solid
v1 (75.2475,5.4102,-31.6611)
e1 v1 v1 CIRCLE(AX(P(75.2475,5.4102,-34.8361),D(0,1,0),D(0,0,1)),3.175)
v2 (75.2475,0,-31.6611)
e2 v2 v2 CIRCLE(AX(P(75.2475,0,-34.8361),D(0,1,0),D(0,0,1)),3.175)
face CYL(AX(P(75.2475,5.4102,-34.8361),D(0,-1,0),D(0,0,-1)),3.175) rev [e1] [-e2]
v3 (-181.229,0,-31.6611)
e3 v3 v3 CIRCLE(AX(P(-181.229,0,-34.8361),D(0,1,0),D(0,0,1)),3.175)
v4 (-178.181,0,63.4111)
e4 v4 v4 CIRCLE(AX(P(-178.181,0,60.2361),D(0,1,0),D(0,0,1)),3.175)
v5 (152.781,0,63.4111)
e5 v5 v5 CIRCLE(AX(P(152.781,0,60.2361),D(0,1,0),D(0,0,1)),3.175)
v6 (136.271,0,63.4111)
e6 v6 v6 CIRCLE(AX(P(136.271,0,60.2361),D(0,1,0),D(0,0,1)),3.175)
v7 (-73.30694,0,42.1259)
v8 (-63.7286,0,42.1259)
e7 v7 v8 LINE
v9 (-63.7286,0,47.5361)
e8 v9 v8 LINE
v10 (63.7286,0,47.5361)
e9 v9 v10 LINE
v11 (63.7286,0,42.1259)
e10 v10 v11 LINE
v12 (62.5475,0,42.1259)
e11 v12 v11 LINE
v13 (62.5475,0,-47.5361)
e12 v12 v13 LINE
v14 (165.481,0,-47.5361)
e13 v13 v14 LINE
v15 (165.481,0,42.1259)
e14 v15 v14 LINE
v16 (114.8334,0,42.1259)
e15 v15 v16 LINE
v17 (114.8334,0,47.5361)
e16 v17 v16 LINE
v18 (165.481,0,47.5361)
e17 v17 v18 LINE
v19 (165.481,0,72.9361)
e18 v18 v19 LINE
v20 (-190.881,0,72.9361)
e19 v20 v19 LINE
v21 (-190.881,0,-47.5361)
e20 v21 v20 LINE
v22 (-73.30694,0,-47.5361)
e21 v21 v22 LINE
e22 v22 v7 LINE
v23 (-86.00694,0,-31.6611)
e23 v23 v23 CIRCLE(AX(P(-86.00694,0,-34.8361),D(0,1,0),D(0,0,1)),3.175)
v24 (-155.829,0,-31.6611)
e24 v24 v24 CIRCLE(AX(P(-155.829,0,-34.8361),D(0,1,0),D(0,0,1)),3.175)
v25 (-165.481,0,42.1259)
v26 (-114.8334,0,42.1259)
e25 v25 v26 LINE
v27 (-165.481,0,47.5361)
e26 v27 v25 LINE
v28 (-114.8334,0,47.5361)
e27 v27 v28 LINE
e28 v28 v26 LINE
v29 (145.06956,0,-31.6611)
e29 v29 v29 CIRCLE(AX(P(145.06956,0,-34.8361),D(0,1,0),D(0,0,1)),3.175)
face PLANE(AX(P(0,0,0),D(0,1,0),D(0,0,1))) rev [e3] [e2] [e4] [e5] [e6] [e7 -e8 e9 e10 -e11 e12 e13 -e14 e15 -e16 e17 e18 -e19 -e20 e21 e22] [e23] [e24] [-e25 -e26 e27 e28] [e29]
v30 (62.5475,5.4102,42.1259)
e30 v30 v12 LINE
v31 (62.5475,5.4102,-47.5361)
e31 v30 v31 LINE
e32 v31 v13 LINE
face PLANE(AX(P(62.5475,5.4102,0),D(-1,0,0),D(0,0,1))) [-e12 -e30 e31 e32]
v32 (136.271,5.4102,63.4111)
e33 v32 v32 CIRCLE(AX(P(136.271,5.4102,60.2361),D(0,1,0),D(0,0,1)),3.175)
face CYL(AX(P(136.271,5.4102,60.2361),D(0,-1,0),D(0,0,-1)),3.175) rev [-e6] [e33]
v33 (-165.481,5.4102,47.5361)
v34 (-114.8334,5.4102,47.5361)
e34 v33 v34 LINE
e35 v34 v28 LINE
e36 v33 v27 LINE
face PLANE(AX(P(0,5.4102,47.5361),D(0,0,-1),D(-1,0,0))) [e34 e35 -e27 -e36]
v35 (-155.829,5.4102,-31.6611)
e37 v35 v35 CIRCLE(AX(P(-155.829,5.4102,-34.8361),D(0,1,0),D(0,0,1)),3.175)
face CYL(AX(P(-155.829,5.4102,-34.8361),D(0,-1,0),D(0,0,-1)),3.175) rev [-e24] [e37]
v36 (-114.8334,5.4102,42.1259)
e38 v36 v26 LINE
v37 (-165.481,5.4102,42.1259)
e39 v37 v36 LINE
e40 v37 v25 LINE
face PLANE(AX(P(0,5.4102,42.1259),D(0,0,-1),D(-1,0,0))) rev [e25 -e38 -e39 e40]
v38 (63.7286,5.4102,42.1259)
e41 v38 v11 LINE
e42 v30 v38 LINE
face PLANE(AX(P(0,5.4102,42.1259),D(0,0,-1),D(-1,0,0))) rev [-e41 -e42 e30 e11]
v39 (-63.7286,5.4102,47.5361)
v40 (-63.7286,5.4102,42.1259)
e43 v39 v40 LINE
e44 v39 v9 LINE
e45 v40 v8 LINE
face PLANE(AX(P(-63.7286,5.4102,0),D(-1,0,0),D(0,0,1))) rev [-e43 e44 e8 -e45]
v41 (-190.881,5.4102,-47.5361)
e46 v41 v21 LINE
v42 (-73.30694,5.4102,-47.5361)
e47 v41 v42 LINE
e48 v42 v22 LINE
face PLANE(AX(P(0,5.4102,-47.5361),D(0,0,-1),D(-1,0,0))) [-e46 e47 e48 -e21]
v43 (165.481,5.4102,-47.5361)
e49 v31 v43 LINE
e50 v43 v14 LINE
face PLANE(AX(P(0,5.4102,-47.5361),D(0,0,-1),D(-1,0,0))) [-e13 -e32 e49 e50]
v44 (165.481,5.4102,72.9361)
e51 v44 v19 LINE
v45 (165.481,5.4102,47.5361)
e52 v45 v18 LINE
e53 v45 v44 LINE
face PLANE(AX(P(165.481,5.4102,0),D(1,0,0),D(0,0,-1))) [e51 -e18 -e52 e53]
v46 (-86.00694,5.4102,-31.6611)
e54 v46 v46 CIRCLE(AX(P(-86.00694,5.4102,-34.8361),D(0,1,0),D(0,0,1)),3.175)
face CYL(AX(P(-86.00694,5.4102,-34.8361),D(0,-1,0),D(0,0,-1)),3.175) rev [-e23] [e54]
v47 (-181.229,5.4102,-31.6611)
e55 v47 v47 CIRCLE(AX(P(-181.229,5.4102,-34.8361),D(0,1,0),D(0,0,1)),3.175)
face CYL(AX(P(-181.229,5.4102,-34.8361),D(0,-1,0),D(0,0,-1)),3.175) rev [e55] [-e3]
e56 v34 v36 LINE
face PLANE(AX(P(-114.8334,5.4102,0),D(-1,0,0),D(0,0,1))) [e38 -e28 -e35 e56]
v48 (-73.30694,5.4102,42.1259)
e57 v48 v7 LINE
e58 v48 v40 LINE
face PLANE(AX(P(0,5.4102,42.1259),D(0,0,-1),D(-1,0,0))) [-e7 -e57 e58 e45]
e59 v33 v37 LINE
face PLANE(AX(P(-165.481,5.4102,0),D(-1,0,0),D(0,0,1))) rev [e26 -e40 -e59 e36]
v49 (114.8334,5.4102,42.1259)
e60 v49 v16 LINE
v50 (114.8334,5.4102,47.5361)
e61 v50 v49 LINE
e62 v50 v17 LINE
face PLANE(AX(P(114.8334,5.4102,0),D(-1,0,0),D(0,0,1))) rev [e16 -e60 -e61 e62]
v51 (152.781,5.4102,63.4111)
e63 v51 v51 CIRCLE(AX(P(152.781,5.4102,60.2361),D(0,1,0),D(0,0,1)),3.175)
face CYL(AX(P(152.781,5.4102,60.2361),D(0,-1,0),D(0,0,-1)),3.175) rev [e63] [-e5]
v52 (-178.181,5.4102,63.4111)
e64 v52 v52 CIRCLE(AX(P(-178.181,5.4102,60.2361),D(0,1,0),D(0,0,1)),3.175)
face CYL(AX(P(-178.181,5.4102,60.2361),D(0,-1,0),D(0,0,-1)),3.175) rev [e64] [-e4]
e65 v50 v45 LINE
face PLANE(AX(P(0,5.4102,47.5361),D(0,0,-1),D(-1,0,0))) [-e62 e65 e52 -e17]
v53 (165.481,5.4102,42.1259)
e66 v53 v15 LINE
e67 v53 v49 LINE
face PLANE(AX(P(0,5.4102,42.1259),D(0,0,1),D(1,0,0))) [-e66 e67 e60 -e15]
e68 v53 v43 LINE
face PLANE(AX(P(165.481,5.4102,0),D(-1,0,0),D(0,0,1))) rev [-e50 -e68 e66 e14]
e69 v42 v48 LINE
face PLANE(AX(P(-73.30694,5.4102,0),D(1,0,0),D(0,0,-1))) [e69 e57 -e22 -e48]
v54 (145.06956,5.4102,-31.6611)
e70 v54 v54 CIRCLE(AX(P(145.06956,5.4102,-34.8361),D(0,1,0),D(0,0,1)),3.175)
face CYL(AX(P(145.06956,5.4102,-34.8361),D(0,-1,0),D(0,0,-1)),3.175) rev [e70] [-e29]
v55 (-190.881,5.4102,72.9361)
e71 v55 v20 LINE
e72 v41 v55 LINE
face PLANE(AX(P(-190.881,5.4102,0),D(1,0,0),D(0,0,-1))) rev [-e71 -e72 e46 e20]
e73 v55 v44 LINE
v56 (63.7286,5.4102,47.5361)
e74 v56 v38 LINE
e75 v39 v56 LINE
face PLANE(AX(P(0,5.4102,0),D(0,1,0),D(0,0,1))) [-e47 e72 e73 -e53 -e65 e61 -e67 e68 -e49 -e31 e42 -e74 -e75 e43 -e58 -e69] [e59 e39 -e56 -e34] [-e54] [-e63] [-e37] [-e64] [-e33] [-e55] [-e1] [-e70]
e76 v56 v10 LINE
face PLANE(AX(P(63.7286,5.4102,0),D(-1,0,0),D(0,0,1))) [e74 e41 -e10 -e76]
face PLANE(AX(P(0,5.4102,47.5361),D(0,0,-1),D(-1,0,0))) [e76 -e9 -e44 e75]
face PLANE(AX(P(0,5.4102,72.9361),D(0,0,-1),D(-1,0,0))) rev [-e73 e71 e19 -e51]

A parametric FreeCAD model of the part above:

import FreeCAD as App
import Part
import Sketcher
Q = App.Units.Quantity

doc = App.newDocument("Part")
body = doc.addObject("PartDesign::Body", "Body")

# Sketch on XZ plane
sketch1 = body.newObject("Sketcher::SketchObject", "Sketch")
sketch1.AttachmentSupport = (doc.getObject("XZ_Plane"), [""])
sketch1.MapMode = "FlatFace"
sketch1.addGeometry([
    Part.LineSegment(App.Vector(-190.9, -47.5, 0), App.Vector(-190.9, 72.9, 0)),  # 0
    Part.LineSegment(App.Vector(-190.9, 72.9, 0), App.Vector(165.5, 72.9, 0)),  # 1
    Part.LineSegment(App.Vector(165.5, 72.9, 0), App.Vector(165.5, 47.5, 0)),  # 2
    Part.LineSegment(App.Vector(165.5, 47.5, 0), App.Vector(114.8, 47.5, 0)),  # 3
    Part.LineSegment(App.Vector(114.8, 47.5, 0), App.Vector(114.8, 42.1, 0)),  # 4
    Part.LineSegment(App.Vector(114.8, 42.1, 0), App.Vector(165.5, 42.1, 0)),  # 5
    Part.LineSegment(App.Vector(165.5, 42.1, 0), App.Vector(165.5, -47.5, 0)),  # 6
    Part.LineSegment(App.Vector(165.5, -47.5, 0), App.Vector(62.5, -47.5, 0)),  # 7
    Part.LineSegment(App.Vector(62.5, -47.5, 0), App.Vector(62.5, 42.1, 0)),  # 8
    Part.LineSegment(App.Vector(62.5, 42.1, 0), App.Vector(63.7, 42.1, 0)),  # 9
    Part.LineSegment(App.Vector(63.7, 42.1, 0), App.Vector(63.7, 47.5, 0)),  # 10
    Part.LineSegment(App.Vector(63.7, 47.5, 0), App.Vector(-63.7, 47.5, 0)),  # 11
    Part.LineSegment(App.Vector(-63.7, 47.5, 0), App.Vector(-63.7, 42.1, 0)),  # 12
    Part.LineSegment(App.Vector(-63.7, 42.1, 0), App.Vector(-73.3, 42.1, 0)),  # 13
    Part.LineSegment(App.Vector(-73.3, 42.1, 0), App.Vector(-73.3, -47.5, 0)),  # 14
    Part.LineSegment(App.Vector(-73.3, -47.5, 0), App.Vector(-190.9, -47.5, 0)),  # 15
    Part.Circle(App.Vector(-178.2, 60.2, 0), App.Vector(0, 0, 1), 3.2),  # 16
    Part.LineSegment(App.Vector(-114.8, 47.5, 0), App.Vector(-165.5, 47.5, 0)),  # 17
    Part.LineSegment(App.Vector(-165.5, 47.5, 0), App.Vector(-165.5, 42.1, 0)),  # 18
    Part.LineSegment(App.Vector(-165.5, 42.1, 0), App.Vector(-114.8, 42.1, 0)),  # 19
    Part.LineSegment(App.Vector(-114.8, 42.1, 0), App.Vector(-114.8, 47.5, 0)),  # 20
    Part.Circle(App.Vector(136.3, 60.2, 0), App.Vector(0, 0, 1), 3.2),  # 21
    Part.Circle(App.Vector(152.8, 60.2, 0), App.Vector(0, 0, 1), 3.2),  # 22
    Part.Circle(App.Vector(-181.2, -34.8, 0), App.Vector(0, 0, 1), 3.2),  # 23
    Part.Circle(App.Vector(-155.8, -34.8, 0), App.Vector(0, 0, 1), 3.2),  # 24
    Part.Circle(App.Vector(-86, -34.8, 0), App.Vector(0, 0, 1), 3.2),  # 25
    Part.Circle(App.Vector(75.2, -34.8, 0), App.Vector(0, 0, 1), 3.2),  # 26
    Part.Circle(App.Vector(145.1, -34.8, 0), App.Vector(0, 0, 1), 3.2),  # 27
], False)
sketch1.addConstraint([
    Sketcher.Constraint("Coincident", 0, 2, 1, 1),
    Sketcher.Constraint("Coincident", 1, 2, 2, 1),
    Sketcher.Constraint("Coincident", 2, 2, 3, 1),
    Sketcher.Constraint("Coincident", 3, 2, 4, 1),
    Sketcher.Constraint("Coincident", 4, 2, 5, 1),
    Sketcher.Constraint("Coincident", 5, 2, 6, 1),
    Sketcher.Constraint("Coincident", 6, 2, 7, 1),
    Sketcher.Constraint("Coincident", 7, 2, 8, 1),
    Sketcher.Constraint("Coincident", 8, 2, 9, 1),
    Sketcher.Constraint("Coincident", 9, 2, 10, 1),
    Sketcher.Constraint("Coincident", 10, 2, 11, 1),
    Sketcher.Constraint("Coincident", 11, 2, 12, 1),
    Sketcher.Constraint("Coincident", 12, 2, 13, 1),
    Sketcher.Constraint("Coincident", 13, 2, 14, 1),
    Sketcher.Constraint("Coincident", 14, 2, 15, 1),
    Sketcher.Constraint("Coincident", 15, 2, 0, 1),
    Sketcher.Constraint("Coincident", 17, 2, 18, 1),
    Sketcher.Constraint("Coincident", 18, 2, 19, 1),
    Sketcher.Constraint("Coincident", 19, 2, 20, 1),
    Sketcher.Constraint("Coincident", 20, 2, 17, 1),
    Sketcher.Constraint("Vertical", 0),
    Sketcher.Constraint("Horizontal", 1),
    Sketcher.Constraint("Vertical", 2),
    Sketcher.Constraint("Horizontal", 3),
    Sketcher.Constraint("Vertical", 4),
    Sketcher.Constraint("Horizontal", 5),
    Sketcher.Constraint("Vertical", 6),
    Sketcher.Constraint("Horizontal", 7),
    Sketcher.Constraint("Vertical", 8),
    Sketcher.Constraint("Horizontal", 9),
    Sketcher.Constraint("Vertical", 10),
    Sketcher.Constraint("Horizontal", 11),
    Sketcher.Constraint("Vertical", 12),
    Sketcher.Constraint("Horizontal", 13),
    Sketcher.Constraint("Vertical", 14),
    Sketcher.Constraint("Horizontal", 15),
    Sketcher.Constraint("Horizontal", 17),
    Sketcher.Constraint("Vertical", 18),
    Sketcher.Constraint("Horizontal", 19),
    Sketcher.Constraint("Vertical", 20),
    Sketcher.Constraint("Equal", 16, 21),
    Sketcher.Constraint("Equal", 21, 22),
    Sketcher.Constraint("Equal", 22, 23),
    Sketcher.Constraint("Equal", 23, 24),
    Sketcher.Constraint("Equal", 24, 25),
    Sketcher.Constraint("Equal", 25, 26),
    Sketcher.Constraint("Equal", 26, 27),
    Sketcher.Constraint("Symmetric", 6, 2, 17, 2, -1, 1),
    Sketcher.Constraint("Symmetric", 9, 2, 12, 2, -2),
    Sketcher.Constraint("Symmetric", 2, 2, 17, 2, -2),
    Sketcher.Constraint("Symmetric", 4, 2, 19, 2, -2),
    Sketcher.Constraint("Horizontal", 16, 3, 21, 3),
    Sketcher.Constraint("Horizontal", 21, 3, 22, 3),
    Sketcher.Constraint("Horizontal", 23, 3, 24, 3),
    Sketcher.Constraint("Horizontal", 24, 3, 25, 3),
    Sketcher.Constraint("Horizontal", 25, 3, 26, 3),
    Sketcher.Constraint("Horizontal", 26, 3, 27, 3),
    Sketcher.Constraint("Horizontal", 5, 2, 8, 2),
    Sketcher.Constraint("Horizontal", 3, 2, 10, 2),
    Sketcher.Constraint("Horizontal", 7, 2, 14, 2),
    Sketcher.Constraint("Diameter", 16, Q("0.25 in")),
    Sketcher.Constraint("DistanceY", 2, 2, 2, 1, Q("1 in")),
    Sketcher.Constraint("DistanceX", 23, 3, 24, 3, Q("1 in")),
    Sketcher.Constraint("DistanceX", 0, 2, 17, 2, Q("1 in")),
    Sketcher.Constraint("DistanceX", 1, 1, 1, 2, Q("14.03 in")),
    Sketcher.Constraint("DistanceY", 6, 2, 6, 1, Q("3.53 in")),
    Sketcher.Constraint("DistanceX", 23, 3, 21, 3, Q("12.5 in")),
    Sketcher.Constraint("DistanceX", 0, 2, 16, 3, Q("0.5 in")),
    Sketcher.Constraint("DistanceY", 16, 3, 0, 2, Q("0.5 in")),
    Sketcher.Constraint("DistanceX", 22, 3, 1, 2, Q("0.5 in")),
    Sketcher.Constraint("DistanceY", 6, 2, 27, 3, Q("0.5 in")),
    Sketcher.Constraint("DistanceX", 7, 2, 26, 3, Q("0.5 in")),
    Sketcher.Constraint("DistanceX", 25, 3, 13, 2, Q("0.5 in")),
    Sketcher.Constraint("DistanceX", 3, 2, 3, 1, Q("1.994 in")),
    Sketcher.Constraint("DistanceX", 11, 2, 11, 1, Q("5.018 in")),
    Sketcher.Constraint("DistanceY", 0, 1, 0, 2, Q("4.743 in")),
    Sketcher.Constraint("DistanceX", 16, 3, 21, 3, Q("12.38 in")),
    Sketcher.Constraint("DistanceX", 7, 2, 7, 1, Q("4.0525 in")),
    Sketcher.Constraint("DistanceX", 13, 2, 13, 1, Q("0.3771 in")),
    Sketcher.Constraint("DistanceX", -1, 1, 27, 3, Q("5.7114 in")),
])
pad1 = body.newObject("PartDesign::Pad", "Pad")
pad1.Profile = sketch1
pad1.Length = Q("0.213 in")
pad1.Reversed = True

doc.recompute()
